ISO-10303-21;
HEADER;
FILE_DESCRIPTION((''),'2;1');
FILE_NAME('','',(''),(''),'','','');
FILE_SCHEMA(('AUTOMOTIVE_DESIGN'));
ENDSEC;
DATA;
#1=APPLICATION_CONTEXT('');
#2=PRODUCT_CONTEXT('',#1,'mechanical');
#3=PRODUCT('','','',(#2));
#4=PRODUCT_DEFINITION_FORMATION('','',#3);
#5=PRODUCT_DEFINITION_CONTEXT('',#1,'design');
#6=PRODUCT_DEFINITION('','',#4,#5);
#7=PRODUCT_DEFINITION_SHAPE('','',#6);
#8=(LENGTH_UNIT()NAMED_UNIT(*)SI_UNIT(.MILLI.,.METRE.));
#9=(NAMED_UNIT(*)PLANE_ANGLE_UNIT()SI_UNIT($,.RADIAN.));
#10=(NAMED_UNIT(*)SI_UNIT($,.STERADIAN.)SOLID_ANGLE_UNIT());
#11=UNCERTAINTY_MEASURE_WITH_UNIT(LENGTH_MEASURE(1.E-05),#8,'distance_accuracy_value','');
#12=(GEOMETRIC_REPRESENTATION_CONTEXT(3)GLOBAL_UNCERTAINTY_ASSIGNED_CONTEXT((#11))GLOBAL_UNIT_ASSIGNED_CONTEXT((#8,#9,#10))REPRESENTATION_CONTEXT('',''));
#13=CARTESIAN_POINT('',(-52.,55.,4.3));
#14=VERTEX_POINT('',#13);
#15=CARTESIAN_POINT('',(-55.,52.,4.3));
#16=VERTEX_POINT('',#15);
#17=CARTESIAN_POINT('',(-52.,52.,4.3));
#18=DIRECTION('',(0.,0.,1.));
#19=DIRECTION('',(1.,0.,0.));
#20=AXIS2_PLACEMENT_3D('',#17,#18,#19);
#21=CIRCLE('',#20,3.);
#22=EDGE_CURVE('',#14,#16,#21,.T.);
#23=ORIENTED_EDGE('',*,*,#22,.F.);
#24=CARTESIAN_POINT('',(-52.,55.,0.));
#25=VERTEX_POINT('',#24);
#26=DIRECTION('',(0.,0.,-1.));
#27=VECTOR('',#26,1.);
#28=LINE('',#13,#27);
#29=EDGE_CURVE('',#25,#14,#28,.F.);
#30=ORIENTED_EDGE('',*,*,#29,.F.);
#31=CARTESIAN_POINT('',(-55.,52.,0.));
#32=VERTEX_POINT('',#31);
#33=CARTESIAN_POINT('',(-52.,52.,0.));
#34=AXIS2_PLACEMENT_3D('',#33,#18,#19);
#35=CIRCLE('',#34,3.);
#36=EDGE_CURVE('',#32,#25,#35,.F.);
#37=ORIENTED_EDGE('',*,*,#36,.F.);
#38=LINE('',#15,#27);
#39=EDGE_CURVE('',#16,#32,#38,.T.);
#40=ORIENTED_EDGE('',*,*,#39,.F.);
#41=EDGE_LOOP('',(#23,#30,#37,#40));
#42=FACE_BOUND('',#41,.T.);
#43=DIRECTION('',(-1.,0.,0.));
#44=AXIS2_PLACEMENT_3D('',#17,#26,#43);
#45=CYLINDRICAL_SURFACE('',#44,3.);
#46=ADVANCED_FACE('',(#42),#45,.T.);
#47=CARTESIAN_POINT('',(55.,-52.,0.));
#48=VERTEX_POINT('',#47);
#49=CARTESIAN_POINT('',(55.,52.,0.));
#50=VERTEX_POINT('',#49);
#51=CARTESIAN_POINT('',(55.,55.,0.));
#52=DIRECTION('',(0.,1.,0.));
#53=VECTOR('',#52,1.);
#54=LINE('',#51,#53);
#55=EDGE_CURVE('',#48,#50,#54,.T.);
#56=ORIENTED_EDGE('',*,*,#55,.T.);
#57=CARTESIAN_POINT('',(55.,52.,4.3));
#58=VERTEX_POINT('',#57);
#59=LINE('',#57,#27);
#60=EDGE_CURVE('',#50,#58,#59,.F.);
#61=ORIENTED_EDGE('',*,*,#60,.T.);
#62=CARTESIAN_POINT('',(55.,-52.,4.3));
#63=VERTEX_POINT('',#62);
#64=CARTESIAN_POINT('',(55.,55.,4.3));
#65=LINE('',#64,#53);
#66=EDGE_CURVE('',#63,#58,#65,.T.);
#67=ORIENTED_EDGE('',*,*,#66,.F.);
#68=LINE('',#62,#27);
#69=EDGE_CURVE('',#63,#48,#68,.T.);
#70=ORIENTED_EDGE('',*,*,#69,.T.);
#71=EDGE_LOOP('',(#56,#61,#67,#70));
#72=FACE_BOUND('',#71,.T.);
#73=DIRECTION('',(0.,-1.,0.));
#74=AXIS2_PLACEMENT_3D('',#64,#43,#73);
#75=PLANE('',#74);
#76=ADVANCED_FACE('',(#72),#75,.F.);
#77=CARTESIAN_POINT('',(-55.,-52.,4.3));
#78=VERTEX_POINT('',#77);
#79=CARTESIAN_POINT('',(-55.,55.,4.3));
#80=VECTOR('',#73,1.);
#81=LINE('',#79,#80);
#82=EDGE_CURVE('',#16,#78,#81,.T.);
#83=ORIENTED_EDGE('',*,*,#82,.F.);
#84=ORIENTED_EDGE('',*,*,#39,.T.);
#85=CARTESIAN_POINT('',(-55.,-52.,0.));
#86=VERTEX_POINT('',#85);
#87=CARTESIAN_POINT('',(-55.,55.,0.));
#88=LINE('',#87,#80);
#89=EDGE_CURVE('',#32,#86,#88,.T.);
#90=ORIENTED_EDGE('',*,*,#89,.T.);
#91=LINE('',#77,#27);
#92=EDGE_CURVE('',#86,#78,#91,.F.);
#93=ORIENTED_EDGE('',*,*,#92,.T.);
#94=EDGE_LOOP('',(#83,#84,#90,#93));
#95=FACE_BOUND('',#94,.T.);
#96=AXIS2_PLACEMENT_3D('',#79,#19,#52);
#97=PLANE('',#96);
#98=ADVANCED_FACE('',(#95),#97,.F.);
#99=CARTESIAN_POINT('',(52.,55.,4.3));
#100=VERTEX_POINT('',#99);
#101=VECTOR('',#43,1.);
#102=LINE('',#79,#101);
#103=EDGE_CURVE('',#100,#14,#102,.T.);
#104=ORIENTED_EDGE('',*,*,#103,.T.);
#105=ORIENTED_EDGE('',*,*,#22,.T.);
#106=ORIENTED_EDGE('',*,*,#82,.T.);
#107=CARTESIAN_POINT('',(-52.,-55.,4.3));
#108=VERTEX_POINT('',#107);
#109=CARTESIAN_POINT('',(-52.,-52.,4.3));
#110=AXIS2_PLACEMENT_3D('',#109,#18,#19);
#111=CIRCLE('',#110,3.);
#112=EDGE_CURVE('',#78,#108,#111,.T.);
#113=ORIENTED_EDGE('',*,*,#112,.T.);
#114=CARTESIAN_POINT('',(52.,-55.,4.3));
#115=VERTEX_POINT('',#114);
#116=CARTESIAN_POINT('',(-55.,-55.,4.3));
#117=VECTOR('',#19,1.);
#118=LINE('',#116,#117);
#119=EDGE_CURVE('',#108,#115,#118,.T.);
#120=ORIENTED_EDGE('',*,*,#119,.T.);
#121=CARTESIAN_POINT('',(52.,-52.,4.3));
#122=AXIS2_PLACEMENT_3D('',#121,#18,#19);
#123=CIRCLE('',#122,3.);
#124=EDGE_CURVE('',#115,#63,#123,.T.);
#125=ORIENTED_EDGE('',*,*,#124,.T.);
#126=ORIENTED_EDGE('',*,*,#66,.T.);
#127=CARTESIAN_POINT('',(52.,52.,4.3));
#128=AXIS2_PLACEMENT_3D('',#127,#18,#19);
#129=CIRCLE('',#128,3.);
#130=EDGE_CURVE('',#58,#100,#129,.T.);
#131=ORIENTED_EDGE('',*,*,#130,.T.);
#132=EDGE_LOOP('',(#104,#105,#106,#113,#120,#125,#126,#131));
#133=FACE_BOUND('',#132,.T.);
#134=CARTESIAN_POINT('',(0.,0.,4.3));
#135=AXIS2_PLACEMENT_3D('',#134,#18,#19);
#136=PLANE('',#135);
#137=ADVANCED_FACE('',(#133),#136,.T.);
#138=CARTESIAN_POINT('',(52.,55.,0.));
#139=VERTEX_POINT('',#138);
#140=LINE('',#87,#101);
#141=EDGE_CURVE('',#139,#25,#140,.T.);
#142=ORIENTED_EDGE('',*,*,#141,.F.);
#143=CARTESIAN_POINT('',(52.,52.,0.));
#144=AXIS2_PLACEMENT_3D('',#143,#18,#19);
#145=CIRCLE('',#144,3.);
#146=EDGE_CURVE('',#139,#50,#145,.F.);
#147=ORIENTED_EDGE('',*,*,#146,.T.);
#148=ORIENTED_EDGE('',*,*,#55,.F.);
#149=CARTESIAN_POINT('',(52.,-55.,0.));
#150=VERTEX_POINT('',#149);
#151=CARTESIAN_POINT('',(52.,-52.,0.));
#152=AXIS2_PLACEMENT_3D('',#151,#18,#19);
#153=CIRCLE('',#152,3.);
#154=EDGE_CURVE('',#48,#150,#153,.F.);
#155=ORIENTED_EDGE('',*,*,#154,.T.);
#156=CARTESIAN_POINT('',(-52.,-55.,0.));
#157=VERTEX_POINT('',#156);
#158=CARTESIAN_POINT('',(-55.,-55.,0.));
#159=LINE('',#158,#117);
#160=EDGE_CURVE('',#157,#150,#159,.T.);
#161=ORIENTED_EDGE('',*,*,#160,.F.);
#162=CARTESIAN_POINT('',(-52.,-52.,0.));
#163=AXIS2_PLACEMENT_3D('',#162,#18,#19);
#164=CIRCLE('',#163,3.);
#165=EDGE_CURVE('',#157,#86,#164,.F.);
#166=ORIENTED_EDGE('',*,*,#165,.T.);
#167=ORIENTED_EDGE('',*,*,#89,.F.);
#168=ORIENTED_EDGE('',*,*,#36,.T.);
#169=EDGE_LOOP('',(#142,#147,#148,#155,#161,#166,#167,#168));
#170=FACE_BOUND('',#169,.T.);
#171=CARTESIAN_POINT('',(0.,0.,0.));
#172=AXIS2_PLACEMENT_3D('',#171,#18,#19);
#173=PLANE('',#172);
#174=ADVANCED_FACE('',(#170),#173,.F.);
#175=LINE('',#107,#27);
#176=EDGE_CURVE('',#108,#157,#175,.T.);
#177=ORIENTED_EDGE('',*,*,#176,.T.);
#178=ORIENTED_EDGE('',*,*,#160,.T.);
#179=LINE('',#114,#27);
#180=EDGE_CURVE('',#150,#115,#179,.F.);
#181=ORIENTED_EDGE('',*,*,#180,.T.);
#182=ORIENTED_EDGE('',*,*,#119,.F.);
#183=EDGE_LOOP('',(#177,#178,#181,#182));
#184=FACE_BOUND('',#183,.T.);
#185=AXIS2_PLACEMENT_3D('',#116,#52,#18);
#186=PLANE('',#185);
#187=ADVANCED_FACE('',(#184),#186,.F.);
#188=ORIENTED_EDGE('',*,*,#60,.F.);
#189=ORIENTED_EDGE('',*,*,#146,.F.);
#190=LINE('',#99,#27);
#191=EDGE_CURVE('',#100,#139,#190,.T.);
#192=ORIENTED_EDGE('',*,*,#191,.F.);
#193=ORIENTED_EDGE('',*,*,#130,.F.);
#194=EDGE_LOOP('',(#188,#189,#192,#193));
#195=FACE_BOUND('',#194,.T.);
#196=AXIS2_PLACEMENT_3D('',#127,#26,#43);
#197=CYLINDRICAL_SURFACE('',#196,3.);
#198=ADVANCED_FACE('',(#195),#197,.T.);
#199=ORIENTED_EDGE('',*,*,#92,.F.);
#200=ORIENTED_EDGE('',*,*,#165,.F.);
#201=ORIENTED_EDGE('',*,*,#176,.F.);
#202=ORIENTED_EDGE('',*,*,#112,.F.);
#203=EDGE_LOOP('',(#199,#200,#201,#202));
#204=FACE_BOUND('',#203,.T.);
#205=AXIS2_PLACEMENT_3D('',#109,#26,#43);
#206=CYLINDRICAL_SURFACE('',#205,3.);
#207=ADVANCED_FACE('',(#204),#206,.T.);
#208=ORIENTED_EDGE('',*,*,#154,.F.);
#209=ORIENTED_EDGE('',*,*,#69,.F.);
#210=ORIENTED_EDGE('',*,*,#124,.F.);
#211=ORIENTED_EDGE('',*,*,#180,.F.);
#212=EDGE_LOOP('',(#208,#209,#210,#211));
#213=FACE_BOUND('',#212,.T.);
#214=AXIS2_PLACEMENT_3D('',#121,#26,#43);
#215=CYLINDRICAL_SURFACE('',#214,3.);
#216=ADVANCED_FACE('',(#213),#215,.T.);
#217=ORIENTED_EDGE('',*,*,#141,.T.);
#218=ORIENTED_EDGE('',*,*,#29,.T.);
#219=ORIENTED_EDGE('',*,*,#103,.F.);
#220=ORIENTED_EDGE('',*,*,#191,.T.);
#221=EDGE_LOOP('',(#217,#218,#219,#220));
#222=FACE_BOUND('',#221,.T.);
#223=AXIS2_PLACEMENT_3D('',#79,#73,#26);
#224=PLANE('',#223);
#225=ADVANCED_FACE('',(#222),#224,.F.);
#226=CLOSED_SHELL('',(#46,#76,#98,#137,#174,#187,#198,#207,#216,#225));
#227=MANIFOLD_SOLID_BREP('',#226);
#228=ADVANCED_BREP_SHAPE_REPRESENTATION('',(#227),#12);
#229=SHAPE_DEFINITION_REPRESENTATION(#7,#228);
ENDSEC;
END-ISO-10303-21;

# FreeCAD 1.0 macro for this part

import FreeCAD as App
import Part
import Sketcher
Q = App.Units.Quantity


def edges_at(feature, points):
    """Names of the edges that pass closest to the given points."""
    edges = feature.Shape.Edges
    near = lambda p: min(range(len(edges)), key=lambda i: edges[i].distToShape(Part.Vertex(*p))[0])
    return sorted({f"Edge{near(p) + 1}" for p in points})


def add_polygon(sketch, points):
    """Adds a closed chain of lines whose ends are joined by coincident constraints."""
    first, n = sketch.GeometryCount, len(points)
    for a, b in zip(points, points[1:] + points[:1]):
        sketch.addGeometry(Part.LineSegment(App.Vector(*a, 0), App.Vector(*b, 0)), False)
    for i in range(n):
        sketch.addConstraint(Sketcher.Constraint("Coincident", first + i, 2, first + (i + 1) % n, 1))

doc = App.newDocument("Part")
body = doc.addObject("PartDesign::Body", "Body")

# Sketch on XY plane
sketch1 = doc.addObject("Sketcher::SketchObject", "Sketch")
body.addObject(sketch1)
sketch1.AttachmentSupport = (doc.XY_Plane, [""])
sketch1.MapMode = "FlatFace"
add_polygon(sketch1, [(-55, 55), (-55, -55), (55, -55), (55, 55)])  # lines 0-3
sketch1.addConstraint([
    Sketcher.Constraint("Vertical", 0),
    Sketcher.Constraint("Horizontal", 1),
    Sketcher.Constraint("Vertical", 2),
    Sketcher.Constraint("Horizontal", 3),
    Sketcher.Constraint("Symmetric", 0, 2, 2, 2, -1, 1),
    Sketcher.Constraint("Equal", 3, 0),
    Sketcher.Constraint("DistanceX", 1, 1, 1, 2, Q("110 mm")),
])
pad1 = doc.addObject("PartDesign::Pad", "Pad")
body.addObject(pad1)
pad1.Profile = sketch1
pad1.Length = 4.3
doc.recompute()

fillet = doc.addObject("PartDesign::Fillet", "Fillet")
body.addObject(fillet)
fillet.Base = (pad1, edges_at(pad1, [
    (55, -55, 2.15),
    (-55, -55, 2.15),
    (-55, 55, 2.15),
    (55, 55, 2.15),
]))
fillet.Radius = 3

doc.recompute()
